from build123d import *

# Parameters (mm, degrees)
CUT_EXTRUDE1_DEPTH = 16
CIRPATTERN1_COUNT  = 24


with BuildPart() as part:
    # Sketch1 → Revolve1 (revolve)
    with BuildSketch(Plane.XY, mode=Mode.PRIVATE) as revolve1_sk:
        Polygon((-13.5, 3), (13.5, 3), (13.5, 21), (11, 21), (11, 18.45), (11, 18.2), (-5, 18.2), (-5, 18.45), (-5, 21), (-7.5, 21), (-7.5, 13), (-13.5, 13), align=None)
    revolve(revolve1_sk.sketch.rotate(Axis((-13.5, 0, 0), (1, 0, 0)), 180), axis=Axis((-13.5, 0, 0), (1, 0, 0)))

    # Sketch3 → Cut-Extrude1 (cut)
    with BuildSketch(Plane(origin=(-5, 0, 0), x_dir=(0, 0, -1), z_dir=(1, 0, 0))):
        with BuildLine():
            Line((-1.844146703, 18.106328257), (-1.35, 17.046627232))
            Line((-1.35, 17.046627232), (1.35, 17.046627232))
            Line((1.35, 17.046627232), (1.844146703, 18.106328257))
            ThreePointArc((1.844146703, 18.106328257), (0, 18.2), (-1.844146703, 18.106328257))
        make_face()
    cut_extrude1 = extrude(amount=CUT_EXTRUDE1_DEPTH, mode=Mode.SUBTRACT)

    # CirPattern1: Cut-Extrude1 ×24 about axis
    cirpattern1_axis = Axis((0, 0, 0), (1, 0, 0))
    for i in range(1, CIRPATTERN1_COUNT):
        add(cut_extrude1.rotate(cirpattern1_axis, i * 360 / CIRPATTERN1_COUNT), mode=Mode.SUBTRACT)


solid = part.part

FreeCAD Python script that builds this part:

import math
import FreeCAD as App
import Part
import Sketcher

V = App.Vector
Q = App.Units.Quantity


def add_polygon(sketch, points):
    """Adds a closed chain of lines whose ends are joined by coincident constraints."""
    first, n = sketch.GeometryCount, len(points)
    for a, b in zip(points, points[1:] + points[:1]):
        sketch.addGeometry(Part.LineSegment(App.Vector(*a, 0), App.Vector(*b, 0)), False)
    for i in range(n):
        sketch.addConstraint(Sketcher.Constraint("Coincident", first + i, 2, first + (i + 1) % n, 1))

doc = App.newDocument("Part")
body = doc.addObject("PartDesign::Body", "Body")

# Sketch on XY plane
sketch1 = body.newObject("Sketcher::SketchObject", "Sketch")
sketch1.AttachmentSupport = (doc.getObject("XY_Plane"), [""])
sketch1.MapMode = "FlatFace"
add_polygon(sketch1, [(-13.5, 3), (13.5, 3), (13.5, 21), (11, 21), (11, 18.2), (-5, 18.2), (-5, 21), (-7.5, 21), (-7.5, 13), (-13.5, 13)])  # lines 0-9
sketch1.addConstraint(Sketcher.Constraint("Horizontal", 0))
sketch1.addConstraint(Sketcher.Constraint("Vertical", 1))
sketch1.addConstraint(Sketcher.Constraint("Horizontal", 2))
sketch1.addConstraint(Sketcher.Constraint("Vertical", 3))
sketch1.addConstraint(Sketcher.Constraint("Horizontal", 4))
sketch1.addConstraint(Sketcher.Constraint("Vertical", 5))
sketch1.addConstraint(Sketcher.Constraint("Horizontal", 6))
sketch1.addConstraint(Sketcher.Constraint("Vertical", 7))
sketch1.addConstraint(Sketcher.Constraint("Horizontal", 8))
sketch1.addConstraint(Sketcher.Constraint("Vertical", 9))
sketch1.addConstraint(Sketcher.Constraint("Horizontal", 2, 2, 5, 2))
sketch1.addConstraint(Sketcher.Constraint("Equal", 2, 6))
sketch1.addConstraint(Sketcher.Constraint("DistanceX", 0, 1, 0, 2, Q("27 mm")))
sketch1.addConstraint(Sketcher.Constraint("DistanceX", 4, 2, 4, 1, Q("16 mm")))
sketch1.addConstraint(Sketcher.Constraint("DistanceX", 8, 2, 8, 1, Q("6 mm")))
sketch1.addConstraint(Sketcher.Constraint("DistanceY", 1, 1, 1, 2, Q("18 mm")))
sketch1.addConstraint(Sketcher.Constraint("DistanceY", 7, 2, 7, 1, Q("8 mm")))
sketch1.addConstraint(Sketcher.Constraint("DistanceY", 3, 2, 3, 1, Q("2.8 mm")))
sketch1.addConstraint(Sketcher.Constraint("DistanceY", -1, 1, 0, 2, Q("3 mm")))
sketch1.addConstraint(Sketcher.Constraint("DistanceX", -1, 1, 2, 2, Q("11 mm")))
revolution = body.newObject("PartDesign::Revolution", "Revolution")
revolution.Profile = sketch1
revolution.ReferenceAxis = (sketch1, ["H_Axis"])
revolution.Angle = 360

# Sketch on YZ plane
sketch2 = body.newObject("Sketcher::SketchObject", "Sketch001")
sketch2.AttachmentSupport = (doc.getObject("YZ_Plane"), [""])
sketch2.MapMode = "FlatFace"
sketch2.AttachmentOffset = App.Placement(V(0, 0, -5), App.Rotation())
sketch2.addGeometry(Part.LineSegment(V(18.106328, 1.844147, 0), V(17.046627, 1.35, 0)), False)
sketch2.addGeometry(Part.LineSegment(V(17.046627, 1.35, 0), V(17.046627, -1.35, 0)), False)
sketch2.addGeometry(Part.LineSegment(V(17.046627, -1.35, 0), V(18.106328, -1.844147, 0)), False)
sketch2.addGeometry(Part.ArcOfCircle(Part.Circle(V(0, 0, 0), V(0, 0, 1), 18.2), math.radians(-5.815575), math.radians(5.815575)), False)
sketch2.addConstraint(Sketcher.Constraint("Coincident", 0, 2, 1, 1))
sketch2.addConstraint(Sketcher.Constraint("Coincident", 1, 2, 2, 1))
sketch2.addConstraint(Sketcher.Constraint("Coincident", 2, 2, 3, 1))
sketch2.addConstraint(Sketcher.Constraint("Coincident", 3, 2, 0, 1))
sketch2.addConstraint(Sketcher.Constraint("Vertical", 1))
sketch2.addConstraint(Sketcher.Constraint("Coincident", 3, 3, -1, 1))
sketch2.addConstraint(Sketcher.Constraint("Vertical", 2, 2, 3, 2))
sketch2.addConstraint(Sketcher.Constraint("Equal", 0, 2))
sketch2.addConstraint(Sketcher.Constraint("Radius", 3, Q("18.2 mm")))
sketch2.addConstraint(Sketcher.Constraint("Angle", 0, Q("-155 deg")))
sketch2.addConstraint(Sketcher.Constraint("DistanceY", 1, 2, 1, 1, Q("2.7 mm")))
sketch2.addConstraint(Sketcher.Constraint("DistanceX", 1, 2, 2, 2, Q("1.059701 mm")))
pocket1 = body.newObject("PartDesign::Pocket", "Pocket")
pocket1.Profile = sketch2
pocket1.Length = 16
pocket1.Reversed = True
doc.recompute()

polarpattern = body.newObject("PartDesign::PolarPattern", "PolarPattern")
polarpattern.Originals = [pocket1]
polarpattern.Axis = (doc.getObject("X_Axis"), [""])
polarpattern.Angle = 360
polarpattern.Occurrences = 24
body.Tip = polarpattern

doc.recompute()
